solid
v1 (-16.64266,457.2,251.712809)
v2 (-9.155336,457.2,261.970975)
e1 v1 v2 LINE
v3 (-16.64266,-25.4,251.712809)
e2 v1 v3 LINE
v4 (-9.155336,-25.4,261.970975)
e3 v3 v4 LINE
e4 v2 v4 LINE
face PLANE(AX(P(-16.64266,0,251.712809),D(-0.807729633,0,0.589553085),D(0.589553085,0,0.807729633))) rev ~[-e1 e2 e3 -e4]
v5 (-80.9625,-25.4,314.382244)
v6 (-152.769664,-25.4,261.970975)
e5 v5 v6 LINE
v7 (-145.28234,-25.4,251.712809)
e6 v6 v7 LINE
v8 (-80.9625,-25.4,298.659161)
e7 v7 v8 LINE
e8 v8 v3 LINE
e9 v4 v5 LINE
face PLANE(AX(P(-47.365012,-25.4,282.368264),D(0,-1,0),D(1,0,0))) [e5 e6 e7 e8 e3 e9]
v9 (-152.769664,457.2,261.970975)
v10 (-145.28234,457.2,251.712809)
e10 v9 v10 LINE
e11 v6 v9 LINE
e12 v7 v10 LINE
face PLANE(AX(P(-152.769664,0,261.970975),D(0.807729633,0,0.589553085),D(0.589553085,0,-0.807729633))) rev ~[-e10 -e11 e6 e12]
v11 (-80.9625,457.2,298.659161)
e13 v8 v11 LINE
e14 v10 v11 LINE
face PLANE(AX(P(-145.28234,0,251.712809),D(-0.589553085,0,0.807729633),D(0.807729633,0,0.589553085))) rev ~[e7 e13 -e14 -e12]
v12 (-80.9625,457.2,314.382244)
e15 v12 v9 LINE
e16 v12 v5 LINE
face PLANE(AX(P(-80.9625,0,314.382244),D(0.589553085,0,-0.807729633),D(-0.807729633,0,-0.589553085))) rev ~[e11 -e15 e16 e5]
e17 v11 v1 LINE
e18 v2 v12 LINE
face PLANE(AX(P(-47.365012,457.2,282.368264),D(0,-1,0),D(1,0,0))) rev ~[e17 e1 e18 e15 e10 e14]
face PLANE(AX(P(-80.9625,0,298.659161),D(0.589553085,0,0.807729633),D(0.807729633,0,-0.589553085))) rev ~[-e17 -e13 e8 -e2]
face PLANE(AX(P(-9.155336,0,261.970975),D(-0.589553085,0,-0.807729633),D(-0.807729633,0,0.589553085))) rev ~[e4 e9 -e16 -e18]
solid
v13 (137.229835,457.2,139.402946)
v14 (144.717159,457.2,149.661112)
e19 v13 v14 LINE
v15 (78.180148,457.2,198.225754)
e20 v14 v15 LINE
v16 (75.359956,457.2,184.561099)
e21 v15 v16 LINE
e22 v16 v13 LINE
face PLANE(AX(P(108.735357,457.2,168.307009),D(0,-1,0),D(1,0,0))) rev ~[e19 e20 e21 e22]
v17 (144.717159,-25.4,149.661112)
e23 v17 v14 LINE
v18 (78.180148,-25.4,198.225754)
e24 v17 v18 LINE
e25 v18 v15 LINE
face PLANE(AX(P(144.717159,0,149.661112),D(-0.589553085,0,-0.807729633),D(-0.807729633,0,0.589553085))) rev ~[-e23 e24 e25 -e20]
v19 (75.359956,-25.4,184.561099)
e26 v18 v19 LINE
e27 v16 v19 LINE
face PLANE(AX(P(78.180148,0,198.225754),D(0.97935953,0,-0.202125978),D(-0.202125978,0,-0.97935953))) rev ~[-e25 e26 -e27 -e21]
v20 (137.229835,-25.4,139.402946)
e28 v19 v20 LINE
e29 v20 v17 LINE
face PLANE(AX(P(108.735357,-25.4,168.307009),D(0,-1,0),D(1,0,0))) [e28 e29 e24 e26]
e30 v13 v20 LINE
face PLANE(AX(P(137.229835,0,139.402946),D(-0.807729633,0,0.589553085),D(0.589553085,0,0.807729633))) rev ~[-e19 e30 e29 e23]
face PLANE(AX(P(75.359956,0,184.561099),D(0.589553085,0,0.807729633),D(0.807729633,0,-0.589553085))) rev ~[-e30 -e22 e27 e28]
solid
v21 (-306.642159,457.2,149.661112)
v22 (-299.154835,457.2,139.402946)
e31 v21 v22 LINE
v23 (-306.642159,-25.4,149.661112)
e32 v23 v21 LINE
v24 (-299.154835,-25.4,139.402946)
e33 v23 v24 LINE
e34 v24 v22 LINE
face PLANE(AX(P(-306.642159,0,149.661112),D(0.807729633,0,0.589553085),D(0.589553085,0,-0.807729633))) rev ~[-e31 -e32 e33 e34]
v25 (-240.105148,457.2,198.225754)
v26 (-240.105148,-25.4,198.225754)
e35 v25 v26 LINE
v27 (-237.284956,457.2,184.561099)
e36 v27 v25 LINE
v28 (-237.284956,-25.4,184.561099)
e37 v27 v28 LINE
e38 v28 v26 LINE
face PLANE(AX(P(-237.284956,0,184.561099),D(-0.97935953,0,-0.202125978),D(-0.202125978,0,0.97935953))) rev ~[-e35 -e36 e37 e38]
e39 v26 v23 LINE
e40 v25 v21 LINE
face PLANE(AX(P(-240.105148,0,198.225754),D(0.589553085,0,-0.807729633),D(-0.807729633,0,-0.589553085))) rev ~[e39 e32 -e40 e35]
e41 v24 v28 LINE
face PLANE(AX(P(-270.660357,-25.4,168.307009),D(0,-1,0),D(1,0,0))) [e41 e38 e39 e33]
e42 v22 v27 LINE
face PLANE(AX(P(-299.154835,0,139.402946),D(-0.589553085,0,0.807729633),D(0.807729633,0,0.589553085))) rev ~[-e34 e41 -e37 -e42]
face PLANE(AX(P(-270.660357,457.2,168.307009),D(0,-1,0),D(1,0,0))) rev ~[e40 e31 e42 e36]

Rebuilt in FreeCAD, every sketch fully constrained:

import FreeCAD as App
import Part
import Sketcher
from FreeCAD import Vector
Q = App.Units.Quantity

doc = App.newDocument("Part")
body = doc.addObject("PartDesign::Body", "Body")

sketch1 = doc.addObject("Sketcher::SketchObject", "Sketch")
body.addObject(sketch1)
sketch1.AttachmentSupport = (doc.XZ_Plane, [""])
sketch1.MapMode = "FlatFace"
sketch1.addGeometry([
    Part.LineSegment(Vector(-299.154835, 139.402946, 0), Vector(-237.284956, 184.561099, 0)),
    Part.LineSegment(Vector(-237.284956, 184.561099, 0), Vector(-240.105148, 198.225754, 0)),
    Part.LineSegment(Vector(-240.105148, 198.225754, 0), Vector(-306.642159, 149.661112, 0)),
    Part.LineSegment(Vector(-306.642159, 149.661112, 0), Vector(-299.154835, 139.402946, 0)),
], False)
sketch1.addConstraint([
    Sketcher.Constraint("Coincident", 0, 2, 1, 1),
    Sketcher.Constraint("Coincident", 1, 2, 2, 1),
    Sketcher.Constraint("Coincident", 2, 2, 3, 1),
    Sketcher.Constraint("Coincident", 3, 2, 0, 1),
    Sketcher.Constraint("Parallel", 0, 2),
    Sketcher.Constraint("Perpendicular", 2, 3),
    Sketcher.Constraint("Distance", 3, Q("0.5 in")),
    Sketcher.Constraint("DistanceY", -1, 1, 0, 2, 184.561099),
    Sketcher.Constraint("Distance", 2, 82.375351),
    Sketcher.Constraint("DistanceX", 2, 2, -1, 1, 306.642159),
    Sketcher.Constraint("DistanceX", 1, 2, 0, 2, 2.820192),
    Sketcher.Constraint("DistanceX", 2, 2, 1, 2, 66.537012),
])
pad1 = doc.addObject("PartDesign::Pad", "Pad")
body.addObject(pad1)
pad1.Profile = sketch1
pad1.Type = "TwoLengths"
pad1.Length = Q("18 in")
pad1.Length2 = Q("1 in")
pad1.Reversed = True
body2 = doc.addObject("PartDesign::Body", "Body001")

sketch2 = doc.addObject("Sketcher::SketchObject", "Sketch001")
body2.addObject(sketch2)
sketch2.AttachmentSupport = (doc.getObject("XZ_Plane001"), [""])
sketch2.MapMode = "FlatFace"
sketch2.addGeometry([
    Part.LineSegment(Vector(-80.9625, 298.659161, 0), Vector(-16.64266, 251.712809, 0)),
    Part.LineSegment(Vector(-16.64266, 251.712809, 0), Vector(-9.155336, 261.970975, 0)),
    Part.LineSegment(Vector(-9.155336, 261.970975, 0), Vector(-80.9625, 314.382244, 0)),
    Part.LineSegment(Vector(-80.9625, 314.382244, 0), Vector(-152.769664, 261.970975, 0)),
    Part.LineSegment(Vector(-152.769664, 261.970975, 0), Vector(-145.28234, 251.712809, 0)),
    Part.LineSegment(Vector(-145.28234, 251.712809, 0), Vector(-80.9625, 298.659161, 0)),
], False)
sketch2.addConstraint([
    Sketcher.Constraint("Coincident", 0, 2, 1, 1),
    Sketcher.Constraint("Coincident", 1, 2, 2, 1),
    Sketcher.Constraint("Coincident", 2, 2, 3, 1),
    Sketcher.Constraint("Coincident", 3, 2, 4, 1),
    Sketcher.Constraint("Coincident", 4, 2, 5, 1),
    Sketcher.Constraint("Coincident", 5, 2, 0, 1),
    Sketcher.Constraint("Perpendicular", 0, 1),
    Sketcher.Constraint("Perpendicular", 1, 2),
    Sketcher.Constraint("Perpendicular", 3, 4),
    Sketcher.Constraint("Perpendicular", 4, 5),
    Sketcher.Constraint("Horizontal", 1, 2, 3, 2),
    Sketcher.Constraint("Horizontal", 0, 2, 4, 2),
    Sketcher.Constraint("Vertical", 2, 2, 5, 2),
    Sketcher.Constraint("Distance", 1, Q("0.5 in")),
    Sketcher.Constraint("Distance", 2, Q("3.5 in")),
    Sketcher.Constraint("DistanceX", 2, 2, -1, 1, Q("3.1875 in")),
    Sketcher.Constraint("DistanceX", 0, 2, -1, 1, 16.64266),
    Sketcher.Constraint("DistanceY", -1, 1, 0, 2, 251.712809),
])
pad2 = doc.addObject("PartDesign::Pad", "Pad001")
body2.addObject(pad2)
pad2.Profile = sketch2
pad2.Type = "TwoLengths"
pad2.Length = Q("18 in")
pad2.Length2 = Q("1 in")
pad2.Reversed = True
body3 = doc.addObject("PartDesign::Body", "Body002")

sketch3 = doc.addObject("Sketcher::SketchObject", "Sketch002")
body3.addObject(sketch3)
sketch3.AttachmentSupport = (doc.getObject("XZ_Plane002"), [""])
sketch3.MapMode = "FlatFace"
sketch3.addGeometry([
    Part.LineSegment(Vector(78.180148, 198.225754, 0), Vector(75.359956, 184.561099, 0)),
    Part.LineSegment(Vector(75.359956, 184.561099, 0), Vector(137.229835, 139.402946, 0)),
    Part.LineSegment(Vector(137.229835, 139.402946, 0), Vector(144.717159, 149.661112, 0)),
    Part.LineSegment(Vector(144.717159, 149.661112, 0), Vector(78.180148, 198.225754, 0)),
], False)
sketch3.addConstraint([
    Sketcher.Constraint("Coincident", 0, 2, 1, 1),
    Sketcher.Constraint("Coincident", 1, 2, 2, 1),
    Sketcher.Constraint("Coincident", 2, 2, 3, 1),
    Sketcher.Constraint("Coincident", 3, 2, 0, 1),
    Sketcher.Constraint("Perpendicular", 1, 2),
    Sketcher.Constraint("Perpendicular", 2, 3),
    Sketcher.Constraint("Distance", 2, Q("0.5 in")),
    Sketcher.Constraint("DistanceY", -1, 1, 0, 2, 184.561099),
    Sketcher.Constraint("Distance", 3, 82.375351),
    Sketcher.Constraint("DistanceX", -1, 1, 2, 2, 144.717159),
    Sketcher.Constraint("DistanceX", 0, 2, 1, 2, 61.869879),
    Sketcher.Constraint("DistanceX", 0, 2, 3, 2, 2.820192),
])
pad3 = doc.addObject("PartDesign::Pad", "Pad002")
body3.addObject(pad3)
pad3.Profile = sketch3
pad3.Type = "TwoLengths"
pad3.Length = Q("18 in")
pad3.Length2 = Q("1 in")
pad3.Reversed = True

doc.recompute()
